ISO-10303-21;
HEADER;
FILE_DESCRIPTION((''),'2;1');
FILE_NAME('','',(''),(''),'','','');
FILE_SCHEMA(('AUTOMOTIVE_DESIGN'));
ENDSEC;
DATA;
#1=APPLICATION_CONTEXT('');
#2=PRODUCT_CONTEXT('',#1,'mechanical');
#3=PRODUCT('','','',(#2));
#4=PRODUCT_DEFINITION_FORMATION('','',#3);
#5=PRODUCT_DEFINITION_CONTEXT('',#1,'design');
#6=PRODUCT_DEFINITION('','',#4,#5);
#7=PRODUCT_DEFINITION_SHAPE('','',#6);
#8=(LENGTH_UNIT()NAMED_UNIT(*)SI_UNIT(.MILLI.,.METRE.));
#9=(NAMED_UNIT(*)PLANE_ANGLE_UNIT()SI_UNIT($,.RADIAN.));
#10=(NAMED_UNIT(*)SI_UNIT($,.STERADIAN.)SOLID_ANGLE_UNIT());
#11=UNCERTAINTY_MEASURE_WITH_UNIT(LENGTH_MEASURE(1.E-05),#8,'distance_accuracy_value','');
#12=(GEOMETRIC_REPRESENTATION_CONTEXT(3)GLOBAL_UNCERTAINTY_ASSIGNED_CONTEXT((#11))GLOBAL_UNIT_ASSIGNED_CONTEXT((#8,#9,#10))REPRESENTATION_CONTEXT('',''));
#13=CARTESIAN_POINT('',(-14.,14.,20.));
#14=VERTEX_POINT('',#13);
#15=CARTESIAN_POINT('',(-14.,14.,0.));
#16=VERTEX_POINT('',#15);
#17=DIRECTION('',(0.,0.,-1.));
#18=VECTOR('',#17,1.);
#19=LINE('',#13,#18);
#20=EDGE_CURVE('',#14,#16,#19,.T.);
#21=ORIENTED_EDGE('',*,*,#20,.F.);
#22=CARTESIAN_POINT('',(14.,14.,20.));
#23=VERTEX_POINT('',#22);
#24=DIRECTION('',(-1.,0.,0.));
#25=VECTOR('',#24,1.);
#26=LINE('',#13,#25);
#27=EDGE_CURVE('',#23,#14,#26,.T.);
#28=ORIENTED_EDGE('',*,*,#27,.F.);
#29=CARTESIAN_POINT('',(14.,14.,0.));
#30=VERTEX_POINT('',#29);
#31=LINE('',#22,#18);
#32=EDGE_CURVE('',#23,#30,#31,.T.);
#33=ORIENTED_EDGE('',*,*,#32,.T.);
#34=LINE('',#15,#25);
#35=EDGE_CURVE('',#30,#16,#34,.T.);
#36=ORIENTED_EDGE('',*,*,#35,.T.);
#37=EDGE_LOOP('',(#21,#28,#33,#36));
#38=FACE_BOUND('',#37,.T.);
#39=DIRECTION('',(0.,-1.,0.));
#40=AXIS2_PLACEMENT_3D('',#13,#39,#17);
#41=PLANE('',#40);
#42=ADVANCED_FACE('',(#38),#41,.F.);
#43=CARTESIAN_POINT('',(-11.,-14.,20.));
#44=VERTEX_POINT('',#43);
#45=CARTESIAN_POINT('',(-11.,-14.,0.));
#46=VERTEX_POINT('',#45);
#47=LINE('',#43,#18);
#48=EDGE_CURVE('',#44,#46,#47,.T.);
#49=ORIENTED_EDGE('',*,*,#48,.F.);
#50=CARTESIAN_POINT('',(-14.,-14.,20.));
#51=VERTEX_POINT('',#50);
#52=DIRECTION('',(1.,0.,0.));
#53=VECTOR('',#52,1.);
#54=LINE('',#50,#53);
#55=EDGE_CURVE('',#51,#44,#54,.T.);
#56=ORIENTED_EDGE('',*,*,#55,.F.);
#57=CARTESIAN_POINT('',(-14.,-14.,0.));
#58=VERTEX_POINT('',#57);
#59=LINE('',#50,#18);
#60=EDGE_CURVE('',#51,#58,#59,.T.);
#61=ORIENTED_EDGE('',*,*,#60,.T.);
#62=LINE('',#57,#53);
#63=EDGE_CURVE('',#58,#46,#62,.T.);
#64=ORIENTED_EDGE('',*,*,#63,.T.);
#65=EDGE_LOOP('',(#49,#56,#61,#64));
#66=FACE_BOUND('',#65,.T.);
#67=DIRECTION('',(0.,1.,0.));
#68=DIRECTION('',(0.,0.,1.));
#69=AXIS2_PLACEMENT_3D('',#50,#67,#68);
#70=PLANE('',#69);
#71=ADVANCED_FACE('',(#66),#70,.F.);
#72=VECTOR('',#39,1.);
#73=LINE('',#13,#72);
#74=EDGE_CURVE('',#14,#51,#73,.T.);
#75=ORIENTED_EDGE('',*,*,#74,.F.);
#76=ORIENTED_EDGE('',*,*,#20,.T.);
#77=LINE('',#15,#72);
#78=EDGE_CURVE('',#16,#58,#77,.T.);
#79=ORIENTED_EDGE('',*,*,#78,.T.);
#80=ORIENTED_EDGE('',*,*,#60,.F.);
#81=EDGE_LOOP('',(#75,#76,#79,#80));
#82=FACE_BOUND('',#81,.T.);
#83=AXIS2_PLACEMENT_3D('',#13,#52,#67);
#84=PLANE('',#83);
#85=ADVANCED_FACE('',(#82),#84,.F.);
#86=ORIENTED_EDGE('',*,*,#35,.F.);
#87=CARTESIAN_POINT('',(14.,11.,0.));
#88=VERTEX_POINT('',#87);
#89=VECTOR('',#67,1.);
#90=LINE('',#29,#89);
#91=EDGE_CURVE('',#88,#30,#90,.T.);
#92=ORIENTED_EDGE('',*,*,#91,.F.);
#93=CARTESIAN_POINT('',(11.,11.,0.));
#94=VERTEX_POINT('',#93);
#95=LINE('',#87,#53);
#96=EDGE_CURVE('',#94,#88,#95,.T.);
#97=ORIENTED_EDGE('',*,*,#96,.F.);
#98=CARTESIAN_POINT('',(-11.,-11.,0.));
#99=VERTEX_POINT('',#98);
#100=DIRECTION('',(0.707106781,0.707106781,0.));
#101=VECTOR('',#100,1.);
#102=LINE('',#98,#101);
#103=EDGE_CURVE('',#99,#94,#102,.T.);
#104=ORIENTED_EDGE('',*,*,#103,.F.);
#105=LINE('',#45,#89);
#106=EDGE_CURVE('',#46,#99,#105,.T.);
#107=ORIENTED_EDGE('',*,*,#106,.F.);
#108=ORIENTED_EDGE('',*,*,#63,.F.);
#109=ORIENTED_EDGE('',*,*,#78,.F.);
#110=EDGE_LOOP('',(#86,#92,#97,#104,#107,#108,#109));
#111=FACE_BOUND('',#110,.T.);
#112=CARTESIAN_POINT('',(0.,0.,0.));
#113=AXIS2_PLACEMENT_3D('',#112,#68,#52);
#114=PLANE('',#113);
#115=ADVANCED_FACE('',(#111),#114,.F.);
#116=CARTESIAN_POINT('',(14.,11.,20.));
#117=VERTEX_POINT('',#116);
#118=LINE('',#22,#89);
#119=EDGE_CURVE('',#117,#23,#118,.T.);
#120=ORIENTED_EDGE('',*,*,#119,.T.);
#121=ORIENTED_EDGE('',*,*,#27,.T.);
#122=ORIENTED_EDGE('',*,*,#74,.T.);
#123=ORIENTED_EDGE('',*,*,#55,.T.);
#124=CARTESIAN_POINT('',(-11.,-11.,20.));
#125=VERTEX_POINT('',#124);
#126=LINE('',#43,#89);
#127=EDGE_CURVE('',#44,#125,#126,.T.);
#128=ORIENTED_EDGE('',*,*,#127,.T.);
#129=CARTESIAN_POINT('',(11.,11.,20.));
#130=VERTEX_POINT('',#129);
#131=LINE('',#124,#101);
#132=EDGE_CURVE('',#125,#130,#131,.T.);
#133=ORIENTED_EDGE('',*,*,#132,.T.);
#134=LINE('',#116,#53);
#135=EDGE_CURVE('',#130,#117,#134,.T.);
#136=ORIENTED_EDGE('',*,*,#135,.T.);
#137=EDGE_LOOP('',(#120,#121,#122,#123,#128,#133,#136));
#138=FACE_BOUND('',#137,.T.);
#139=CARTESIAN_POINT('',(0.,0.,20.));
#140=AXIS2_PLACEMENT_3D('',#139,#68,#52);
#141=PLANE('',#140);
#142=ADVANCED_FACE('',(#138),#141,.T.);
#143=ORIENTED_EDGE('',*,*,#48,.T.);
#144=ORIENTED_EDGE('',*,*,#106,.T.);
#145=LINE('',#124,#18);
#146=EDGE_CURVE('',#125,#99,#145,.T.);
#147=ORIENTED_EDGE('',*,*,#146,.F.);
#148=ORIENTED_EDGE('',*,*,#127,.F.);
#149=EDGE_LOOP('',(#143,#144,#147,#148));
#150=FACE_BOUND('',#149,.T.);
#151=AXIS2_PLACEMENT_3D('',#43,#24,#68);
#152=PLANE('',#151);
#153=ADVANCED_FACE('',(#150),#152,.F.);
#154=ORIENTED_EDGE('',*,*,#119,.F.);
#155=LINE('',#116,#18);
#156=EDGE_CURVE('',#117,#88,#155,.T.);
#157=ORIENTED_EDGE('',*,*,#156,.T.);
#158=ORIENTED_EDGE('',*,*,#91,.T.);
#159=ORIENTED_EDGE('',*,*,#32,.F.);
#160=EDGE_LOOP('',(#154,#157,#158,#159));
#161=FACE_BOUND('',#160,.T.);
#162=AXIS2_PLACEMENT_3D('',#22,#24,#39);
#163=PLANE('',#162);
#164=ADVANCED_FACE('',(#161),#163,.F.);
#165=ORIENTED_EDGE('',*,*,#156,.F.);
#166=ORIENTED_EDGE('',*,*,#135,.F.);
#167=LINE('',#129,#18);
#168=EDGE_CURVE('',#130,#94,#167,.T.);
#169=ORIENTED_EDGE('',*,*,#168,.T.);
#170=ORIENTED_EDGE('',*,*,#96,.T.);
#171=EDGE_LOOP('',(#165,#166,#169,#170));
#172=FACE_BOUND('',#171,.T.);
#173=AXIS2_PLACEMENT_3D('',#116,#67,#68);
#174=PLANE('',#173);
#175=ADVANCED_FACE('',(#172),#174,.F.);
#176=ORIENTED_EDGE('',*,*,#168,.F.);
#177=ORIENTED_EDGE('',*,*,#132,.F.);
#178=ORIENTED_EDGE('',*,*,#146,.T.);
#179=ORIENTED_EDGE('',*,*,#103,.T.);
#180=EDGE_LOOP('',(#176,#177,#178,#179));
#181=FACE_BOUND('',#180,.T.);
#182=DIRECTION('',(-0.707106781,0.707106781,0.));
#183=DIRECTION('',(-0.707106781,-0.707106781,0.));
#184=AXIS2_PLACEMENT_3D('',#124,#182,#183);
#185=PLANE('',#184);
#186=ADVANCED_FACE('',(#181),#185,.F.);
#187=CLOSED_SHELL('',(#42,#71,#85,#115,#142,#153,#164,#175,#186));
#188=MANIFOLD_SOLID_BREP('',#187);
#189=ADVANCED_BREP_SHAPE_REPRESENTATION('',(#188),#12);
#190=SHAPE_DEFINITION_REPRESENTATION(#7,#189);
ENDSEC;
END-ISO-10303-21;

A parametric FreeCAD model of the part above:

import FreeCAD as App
import Part
import Sketcher
from FreeCAD import Vector

doc = App.newDocument("Part")
body = doc.addObject("PartDesign::Body", "Body")

# Sketch on XY plane
sketch1 = body.newObject("Sketcher::SketchObject", "Sketch")
sketch1.AttachmentSupport = (doc.getObject("XY_Plane"), [""])
sketch1.MapMode = "FlatFace"
sketch1.addGeometry(Part.LineSegment(Vector(-11, -11, 0), Vector(11, 11, 0)), False)
sketch1.addGeometry(Part.LineSegment(Vector(11, 11, 0), Vector(14, 11, 0)), False)
sketch1.addGeometry(Part.LineSegment(Vector(14, 11, 0), Vector(14, 14, 0)), False)
sketch1.addGeometry(Part.LineSegment(Vector(14, 14, 0), Vector(-14, 14, 0)), False)
sketch1.addGeometry(Part.LineSegment(Vector(-14, 14, 0), Vector(-14, -14, 0)), False)
sketch1.addGeometry(Part.LineSegment(Vector(-14, -14, 0), Vector(-11, -14, 0)), False)
sketch1.addGeometry(Part.LineSegment(Vector(-11, -14, 0), Vector(-11, -11, 0)), False)
sketch1.addConstraint(Sketcher.Constraint("Coincident", 0, 2, 1, 1))
sketch1.addConstraint(Sketcher.Constraint("Coincident", 1, 2, 2, 1))
sketch1.addConstraint(Sketcher.Constraint("Coincident", 2, 2, 3, 1))
sketch1.addConstraint(Sketcher.Constraint("Coincident", 3, 2, 4, 1))
sketch1.addConstraint(Sketcher.Constraint("Coincident", 4, 2, 5, 1))
sketch1.addConstraint(Sketcher.Constraint("Coincident", 5, 2, 6, 1))
sketch1.addConstraint(Sketcher.Constraint("Coincident", 6, 2, 0, 1))
sketch1.addConstraint(Sketcher.Constraint("Horizontal", 1))
sketch1.addConstraint(Sketcher.Constraint("Vertical", 2))
sketch1.addConstraint(Sketcher.Constraint("Horizontal", 3))
sketch1.addConstraint(Sketcher.Constraint("Vertical", 4))
sketch1.addConstraint(Sketcher.Constraint("Horizontal", 5))
sketch1.addConstraint(Sketcher.Constraint("Vertical", 6))
sketch1.addConstraint(Sketcher.Constraint("Symmetric", 2, 2, 4, 2, -1, 1))
sketch1.addConstraint(Sketcher.Constraint("Symmetric", 0, 2, 6, 2, -1, 1))
sketch1.addConstraint(Sketcher.Constraint("Equal", 5, 2))
sketch1.addConstraint(Sketcher.Constraint("Equal", 3, 4))
sketch1.addConstraint(Sketcher.Constraint("DistanceX", 1, 1, 1, 2, 3.0))
sketch1.addConstraint(Sketcher.Constraint("DistanceX", 3, 2, 3, 1, 28.0))
pad1 = body.newObject("PartDesign::Pad", "Pad")
pad1.Profile = sketch1
pad1.Length = 20

doc.recompute()
